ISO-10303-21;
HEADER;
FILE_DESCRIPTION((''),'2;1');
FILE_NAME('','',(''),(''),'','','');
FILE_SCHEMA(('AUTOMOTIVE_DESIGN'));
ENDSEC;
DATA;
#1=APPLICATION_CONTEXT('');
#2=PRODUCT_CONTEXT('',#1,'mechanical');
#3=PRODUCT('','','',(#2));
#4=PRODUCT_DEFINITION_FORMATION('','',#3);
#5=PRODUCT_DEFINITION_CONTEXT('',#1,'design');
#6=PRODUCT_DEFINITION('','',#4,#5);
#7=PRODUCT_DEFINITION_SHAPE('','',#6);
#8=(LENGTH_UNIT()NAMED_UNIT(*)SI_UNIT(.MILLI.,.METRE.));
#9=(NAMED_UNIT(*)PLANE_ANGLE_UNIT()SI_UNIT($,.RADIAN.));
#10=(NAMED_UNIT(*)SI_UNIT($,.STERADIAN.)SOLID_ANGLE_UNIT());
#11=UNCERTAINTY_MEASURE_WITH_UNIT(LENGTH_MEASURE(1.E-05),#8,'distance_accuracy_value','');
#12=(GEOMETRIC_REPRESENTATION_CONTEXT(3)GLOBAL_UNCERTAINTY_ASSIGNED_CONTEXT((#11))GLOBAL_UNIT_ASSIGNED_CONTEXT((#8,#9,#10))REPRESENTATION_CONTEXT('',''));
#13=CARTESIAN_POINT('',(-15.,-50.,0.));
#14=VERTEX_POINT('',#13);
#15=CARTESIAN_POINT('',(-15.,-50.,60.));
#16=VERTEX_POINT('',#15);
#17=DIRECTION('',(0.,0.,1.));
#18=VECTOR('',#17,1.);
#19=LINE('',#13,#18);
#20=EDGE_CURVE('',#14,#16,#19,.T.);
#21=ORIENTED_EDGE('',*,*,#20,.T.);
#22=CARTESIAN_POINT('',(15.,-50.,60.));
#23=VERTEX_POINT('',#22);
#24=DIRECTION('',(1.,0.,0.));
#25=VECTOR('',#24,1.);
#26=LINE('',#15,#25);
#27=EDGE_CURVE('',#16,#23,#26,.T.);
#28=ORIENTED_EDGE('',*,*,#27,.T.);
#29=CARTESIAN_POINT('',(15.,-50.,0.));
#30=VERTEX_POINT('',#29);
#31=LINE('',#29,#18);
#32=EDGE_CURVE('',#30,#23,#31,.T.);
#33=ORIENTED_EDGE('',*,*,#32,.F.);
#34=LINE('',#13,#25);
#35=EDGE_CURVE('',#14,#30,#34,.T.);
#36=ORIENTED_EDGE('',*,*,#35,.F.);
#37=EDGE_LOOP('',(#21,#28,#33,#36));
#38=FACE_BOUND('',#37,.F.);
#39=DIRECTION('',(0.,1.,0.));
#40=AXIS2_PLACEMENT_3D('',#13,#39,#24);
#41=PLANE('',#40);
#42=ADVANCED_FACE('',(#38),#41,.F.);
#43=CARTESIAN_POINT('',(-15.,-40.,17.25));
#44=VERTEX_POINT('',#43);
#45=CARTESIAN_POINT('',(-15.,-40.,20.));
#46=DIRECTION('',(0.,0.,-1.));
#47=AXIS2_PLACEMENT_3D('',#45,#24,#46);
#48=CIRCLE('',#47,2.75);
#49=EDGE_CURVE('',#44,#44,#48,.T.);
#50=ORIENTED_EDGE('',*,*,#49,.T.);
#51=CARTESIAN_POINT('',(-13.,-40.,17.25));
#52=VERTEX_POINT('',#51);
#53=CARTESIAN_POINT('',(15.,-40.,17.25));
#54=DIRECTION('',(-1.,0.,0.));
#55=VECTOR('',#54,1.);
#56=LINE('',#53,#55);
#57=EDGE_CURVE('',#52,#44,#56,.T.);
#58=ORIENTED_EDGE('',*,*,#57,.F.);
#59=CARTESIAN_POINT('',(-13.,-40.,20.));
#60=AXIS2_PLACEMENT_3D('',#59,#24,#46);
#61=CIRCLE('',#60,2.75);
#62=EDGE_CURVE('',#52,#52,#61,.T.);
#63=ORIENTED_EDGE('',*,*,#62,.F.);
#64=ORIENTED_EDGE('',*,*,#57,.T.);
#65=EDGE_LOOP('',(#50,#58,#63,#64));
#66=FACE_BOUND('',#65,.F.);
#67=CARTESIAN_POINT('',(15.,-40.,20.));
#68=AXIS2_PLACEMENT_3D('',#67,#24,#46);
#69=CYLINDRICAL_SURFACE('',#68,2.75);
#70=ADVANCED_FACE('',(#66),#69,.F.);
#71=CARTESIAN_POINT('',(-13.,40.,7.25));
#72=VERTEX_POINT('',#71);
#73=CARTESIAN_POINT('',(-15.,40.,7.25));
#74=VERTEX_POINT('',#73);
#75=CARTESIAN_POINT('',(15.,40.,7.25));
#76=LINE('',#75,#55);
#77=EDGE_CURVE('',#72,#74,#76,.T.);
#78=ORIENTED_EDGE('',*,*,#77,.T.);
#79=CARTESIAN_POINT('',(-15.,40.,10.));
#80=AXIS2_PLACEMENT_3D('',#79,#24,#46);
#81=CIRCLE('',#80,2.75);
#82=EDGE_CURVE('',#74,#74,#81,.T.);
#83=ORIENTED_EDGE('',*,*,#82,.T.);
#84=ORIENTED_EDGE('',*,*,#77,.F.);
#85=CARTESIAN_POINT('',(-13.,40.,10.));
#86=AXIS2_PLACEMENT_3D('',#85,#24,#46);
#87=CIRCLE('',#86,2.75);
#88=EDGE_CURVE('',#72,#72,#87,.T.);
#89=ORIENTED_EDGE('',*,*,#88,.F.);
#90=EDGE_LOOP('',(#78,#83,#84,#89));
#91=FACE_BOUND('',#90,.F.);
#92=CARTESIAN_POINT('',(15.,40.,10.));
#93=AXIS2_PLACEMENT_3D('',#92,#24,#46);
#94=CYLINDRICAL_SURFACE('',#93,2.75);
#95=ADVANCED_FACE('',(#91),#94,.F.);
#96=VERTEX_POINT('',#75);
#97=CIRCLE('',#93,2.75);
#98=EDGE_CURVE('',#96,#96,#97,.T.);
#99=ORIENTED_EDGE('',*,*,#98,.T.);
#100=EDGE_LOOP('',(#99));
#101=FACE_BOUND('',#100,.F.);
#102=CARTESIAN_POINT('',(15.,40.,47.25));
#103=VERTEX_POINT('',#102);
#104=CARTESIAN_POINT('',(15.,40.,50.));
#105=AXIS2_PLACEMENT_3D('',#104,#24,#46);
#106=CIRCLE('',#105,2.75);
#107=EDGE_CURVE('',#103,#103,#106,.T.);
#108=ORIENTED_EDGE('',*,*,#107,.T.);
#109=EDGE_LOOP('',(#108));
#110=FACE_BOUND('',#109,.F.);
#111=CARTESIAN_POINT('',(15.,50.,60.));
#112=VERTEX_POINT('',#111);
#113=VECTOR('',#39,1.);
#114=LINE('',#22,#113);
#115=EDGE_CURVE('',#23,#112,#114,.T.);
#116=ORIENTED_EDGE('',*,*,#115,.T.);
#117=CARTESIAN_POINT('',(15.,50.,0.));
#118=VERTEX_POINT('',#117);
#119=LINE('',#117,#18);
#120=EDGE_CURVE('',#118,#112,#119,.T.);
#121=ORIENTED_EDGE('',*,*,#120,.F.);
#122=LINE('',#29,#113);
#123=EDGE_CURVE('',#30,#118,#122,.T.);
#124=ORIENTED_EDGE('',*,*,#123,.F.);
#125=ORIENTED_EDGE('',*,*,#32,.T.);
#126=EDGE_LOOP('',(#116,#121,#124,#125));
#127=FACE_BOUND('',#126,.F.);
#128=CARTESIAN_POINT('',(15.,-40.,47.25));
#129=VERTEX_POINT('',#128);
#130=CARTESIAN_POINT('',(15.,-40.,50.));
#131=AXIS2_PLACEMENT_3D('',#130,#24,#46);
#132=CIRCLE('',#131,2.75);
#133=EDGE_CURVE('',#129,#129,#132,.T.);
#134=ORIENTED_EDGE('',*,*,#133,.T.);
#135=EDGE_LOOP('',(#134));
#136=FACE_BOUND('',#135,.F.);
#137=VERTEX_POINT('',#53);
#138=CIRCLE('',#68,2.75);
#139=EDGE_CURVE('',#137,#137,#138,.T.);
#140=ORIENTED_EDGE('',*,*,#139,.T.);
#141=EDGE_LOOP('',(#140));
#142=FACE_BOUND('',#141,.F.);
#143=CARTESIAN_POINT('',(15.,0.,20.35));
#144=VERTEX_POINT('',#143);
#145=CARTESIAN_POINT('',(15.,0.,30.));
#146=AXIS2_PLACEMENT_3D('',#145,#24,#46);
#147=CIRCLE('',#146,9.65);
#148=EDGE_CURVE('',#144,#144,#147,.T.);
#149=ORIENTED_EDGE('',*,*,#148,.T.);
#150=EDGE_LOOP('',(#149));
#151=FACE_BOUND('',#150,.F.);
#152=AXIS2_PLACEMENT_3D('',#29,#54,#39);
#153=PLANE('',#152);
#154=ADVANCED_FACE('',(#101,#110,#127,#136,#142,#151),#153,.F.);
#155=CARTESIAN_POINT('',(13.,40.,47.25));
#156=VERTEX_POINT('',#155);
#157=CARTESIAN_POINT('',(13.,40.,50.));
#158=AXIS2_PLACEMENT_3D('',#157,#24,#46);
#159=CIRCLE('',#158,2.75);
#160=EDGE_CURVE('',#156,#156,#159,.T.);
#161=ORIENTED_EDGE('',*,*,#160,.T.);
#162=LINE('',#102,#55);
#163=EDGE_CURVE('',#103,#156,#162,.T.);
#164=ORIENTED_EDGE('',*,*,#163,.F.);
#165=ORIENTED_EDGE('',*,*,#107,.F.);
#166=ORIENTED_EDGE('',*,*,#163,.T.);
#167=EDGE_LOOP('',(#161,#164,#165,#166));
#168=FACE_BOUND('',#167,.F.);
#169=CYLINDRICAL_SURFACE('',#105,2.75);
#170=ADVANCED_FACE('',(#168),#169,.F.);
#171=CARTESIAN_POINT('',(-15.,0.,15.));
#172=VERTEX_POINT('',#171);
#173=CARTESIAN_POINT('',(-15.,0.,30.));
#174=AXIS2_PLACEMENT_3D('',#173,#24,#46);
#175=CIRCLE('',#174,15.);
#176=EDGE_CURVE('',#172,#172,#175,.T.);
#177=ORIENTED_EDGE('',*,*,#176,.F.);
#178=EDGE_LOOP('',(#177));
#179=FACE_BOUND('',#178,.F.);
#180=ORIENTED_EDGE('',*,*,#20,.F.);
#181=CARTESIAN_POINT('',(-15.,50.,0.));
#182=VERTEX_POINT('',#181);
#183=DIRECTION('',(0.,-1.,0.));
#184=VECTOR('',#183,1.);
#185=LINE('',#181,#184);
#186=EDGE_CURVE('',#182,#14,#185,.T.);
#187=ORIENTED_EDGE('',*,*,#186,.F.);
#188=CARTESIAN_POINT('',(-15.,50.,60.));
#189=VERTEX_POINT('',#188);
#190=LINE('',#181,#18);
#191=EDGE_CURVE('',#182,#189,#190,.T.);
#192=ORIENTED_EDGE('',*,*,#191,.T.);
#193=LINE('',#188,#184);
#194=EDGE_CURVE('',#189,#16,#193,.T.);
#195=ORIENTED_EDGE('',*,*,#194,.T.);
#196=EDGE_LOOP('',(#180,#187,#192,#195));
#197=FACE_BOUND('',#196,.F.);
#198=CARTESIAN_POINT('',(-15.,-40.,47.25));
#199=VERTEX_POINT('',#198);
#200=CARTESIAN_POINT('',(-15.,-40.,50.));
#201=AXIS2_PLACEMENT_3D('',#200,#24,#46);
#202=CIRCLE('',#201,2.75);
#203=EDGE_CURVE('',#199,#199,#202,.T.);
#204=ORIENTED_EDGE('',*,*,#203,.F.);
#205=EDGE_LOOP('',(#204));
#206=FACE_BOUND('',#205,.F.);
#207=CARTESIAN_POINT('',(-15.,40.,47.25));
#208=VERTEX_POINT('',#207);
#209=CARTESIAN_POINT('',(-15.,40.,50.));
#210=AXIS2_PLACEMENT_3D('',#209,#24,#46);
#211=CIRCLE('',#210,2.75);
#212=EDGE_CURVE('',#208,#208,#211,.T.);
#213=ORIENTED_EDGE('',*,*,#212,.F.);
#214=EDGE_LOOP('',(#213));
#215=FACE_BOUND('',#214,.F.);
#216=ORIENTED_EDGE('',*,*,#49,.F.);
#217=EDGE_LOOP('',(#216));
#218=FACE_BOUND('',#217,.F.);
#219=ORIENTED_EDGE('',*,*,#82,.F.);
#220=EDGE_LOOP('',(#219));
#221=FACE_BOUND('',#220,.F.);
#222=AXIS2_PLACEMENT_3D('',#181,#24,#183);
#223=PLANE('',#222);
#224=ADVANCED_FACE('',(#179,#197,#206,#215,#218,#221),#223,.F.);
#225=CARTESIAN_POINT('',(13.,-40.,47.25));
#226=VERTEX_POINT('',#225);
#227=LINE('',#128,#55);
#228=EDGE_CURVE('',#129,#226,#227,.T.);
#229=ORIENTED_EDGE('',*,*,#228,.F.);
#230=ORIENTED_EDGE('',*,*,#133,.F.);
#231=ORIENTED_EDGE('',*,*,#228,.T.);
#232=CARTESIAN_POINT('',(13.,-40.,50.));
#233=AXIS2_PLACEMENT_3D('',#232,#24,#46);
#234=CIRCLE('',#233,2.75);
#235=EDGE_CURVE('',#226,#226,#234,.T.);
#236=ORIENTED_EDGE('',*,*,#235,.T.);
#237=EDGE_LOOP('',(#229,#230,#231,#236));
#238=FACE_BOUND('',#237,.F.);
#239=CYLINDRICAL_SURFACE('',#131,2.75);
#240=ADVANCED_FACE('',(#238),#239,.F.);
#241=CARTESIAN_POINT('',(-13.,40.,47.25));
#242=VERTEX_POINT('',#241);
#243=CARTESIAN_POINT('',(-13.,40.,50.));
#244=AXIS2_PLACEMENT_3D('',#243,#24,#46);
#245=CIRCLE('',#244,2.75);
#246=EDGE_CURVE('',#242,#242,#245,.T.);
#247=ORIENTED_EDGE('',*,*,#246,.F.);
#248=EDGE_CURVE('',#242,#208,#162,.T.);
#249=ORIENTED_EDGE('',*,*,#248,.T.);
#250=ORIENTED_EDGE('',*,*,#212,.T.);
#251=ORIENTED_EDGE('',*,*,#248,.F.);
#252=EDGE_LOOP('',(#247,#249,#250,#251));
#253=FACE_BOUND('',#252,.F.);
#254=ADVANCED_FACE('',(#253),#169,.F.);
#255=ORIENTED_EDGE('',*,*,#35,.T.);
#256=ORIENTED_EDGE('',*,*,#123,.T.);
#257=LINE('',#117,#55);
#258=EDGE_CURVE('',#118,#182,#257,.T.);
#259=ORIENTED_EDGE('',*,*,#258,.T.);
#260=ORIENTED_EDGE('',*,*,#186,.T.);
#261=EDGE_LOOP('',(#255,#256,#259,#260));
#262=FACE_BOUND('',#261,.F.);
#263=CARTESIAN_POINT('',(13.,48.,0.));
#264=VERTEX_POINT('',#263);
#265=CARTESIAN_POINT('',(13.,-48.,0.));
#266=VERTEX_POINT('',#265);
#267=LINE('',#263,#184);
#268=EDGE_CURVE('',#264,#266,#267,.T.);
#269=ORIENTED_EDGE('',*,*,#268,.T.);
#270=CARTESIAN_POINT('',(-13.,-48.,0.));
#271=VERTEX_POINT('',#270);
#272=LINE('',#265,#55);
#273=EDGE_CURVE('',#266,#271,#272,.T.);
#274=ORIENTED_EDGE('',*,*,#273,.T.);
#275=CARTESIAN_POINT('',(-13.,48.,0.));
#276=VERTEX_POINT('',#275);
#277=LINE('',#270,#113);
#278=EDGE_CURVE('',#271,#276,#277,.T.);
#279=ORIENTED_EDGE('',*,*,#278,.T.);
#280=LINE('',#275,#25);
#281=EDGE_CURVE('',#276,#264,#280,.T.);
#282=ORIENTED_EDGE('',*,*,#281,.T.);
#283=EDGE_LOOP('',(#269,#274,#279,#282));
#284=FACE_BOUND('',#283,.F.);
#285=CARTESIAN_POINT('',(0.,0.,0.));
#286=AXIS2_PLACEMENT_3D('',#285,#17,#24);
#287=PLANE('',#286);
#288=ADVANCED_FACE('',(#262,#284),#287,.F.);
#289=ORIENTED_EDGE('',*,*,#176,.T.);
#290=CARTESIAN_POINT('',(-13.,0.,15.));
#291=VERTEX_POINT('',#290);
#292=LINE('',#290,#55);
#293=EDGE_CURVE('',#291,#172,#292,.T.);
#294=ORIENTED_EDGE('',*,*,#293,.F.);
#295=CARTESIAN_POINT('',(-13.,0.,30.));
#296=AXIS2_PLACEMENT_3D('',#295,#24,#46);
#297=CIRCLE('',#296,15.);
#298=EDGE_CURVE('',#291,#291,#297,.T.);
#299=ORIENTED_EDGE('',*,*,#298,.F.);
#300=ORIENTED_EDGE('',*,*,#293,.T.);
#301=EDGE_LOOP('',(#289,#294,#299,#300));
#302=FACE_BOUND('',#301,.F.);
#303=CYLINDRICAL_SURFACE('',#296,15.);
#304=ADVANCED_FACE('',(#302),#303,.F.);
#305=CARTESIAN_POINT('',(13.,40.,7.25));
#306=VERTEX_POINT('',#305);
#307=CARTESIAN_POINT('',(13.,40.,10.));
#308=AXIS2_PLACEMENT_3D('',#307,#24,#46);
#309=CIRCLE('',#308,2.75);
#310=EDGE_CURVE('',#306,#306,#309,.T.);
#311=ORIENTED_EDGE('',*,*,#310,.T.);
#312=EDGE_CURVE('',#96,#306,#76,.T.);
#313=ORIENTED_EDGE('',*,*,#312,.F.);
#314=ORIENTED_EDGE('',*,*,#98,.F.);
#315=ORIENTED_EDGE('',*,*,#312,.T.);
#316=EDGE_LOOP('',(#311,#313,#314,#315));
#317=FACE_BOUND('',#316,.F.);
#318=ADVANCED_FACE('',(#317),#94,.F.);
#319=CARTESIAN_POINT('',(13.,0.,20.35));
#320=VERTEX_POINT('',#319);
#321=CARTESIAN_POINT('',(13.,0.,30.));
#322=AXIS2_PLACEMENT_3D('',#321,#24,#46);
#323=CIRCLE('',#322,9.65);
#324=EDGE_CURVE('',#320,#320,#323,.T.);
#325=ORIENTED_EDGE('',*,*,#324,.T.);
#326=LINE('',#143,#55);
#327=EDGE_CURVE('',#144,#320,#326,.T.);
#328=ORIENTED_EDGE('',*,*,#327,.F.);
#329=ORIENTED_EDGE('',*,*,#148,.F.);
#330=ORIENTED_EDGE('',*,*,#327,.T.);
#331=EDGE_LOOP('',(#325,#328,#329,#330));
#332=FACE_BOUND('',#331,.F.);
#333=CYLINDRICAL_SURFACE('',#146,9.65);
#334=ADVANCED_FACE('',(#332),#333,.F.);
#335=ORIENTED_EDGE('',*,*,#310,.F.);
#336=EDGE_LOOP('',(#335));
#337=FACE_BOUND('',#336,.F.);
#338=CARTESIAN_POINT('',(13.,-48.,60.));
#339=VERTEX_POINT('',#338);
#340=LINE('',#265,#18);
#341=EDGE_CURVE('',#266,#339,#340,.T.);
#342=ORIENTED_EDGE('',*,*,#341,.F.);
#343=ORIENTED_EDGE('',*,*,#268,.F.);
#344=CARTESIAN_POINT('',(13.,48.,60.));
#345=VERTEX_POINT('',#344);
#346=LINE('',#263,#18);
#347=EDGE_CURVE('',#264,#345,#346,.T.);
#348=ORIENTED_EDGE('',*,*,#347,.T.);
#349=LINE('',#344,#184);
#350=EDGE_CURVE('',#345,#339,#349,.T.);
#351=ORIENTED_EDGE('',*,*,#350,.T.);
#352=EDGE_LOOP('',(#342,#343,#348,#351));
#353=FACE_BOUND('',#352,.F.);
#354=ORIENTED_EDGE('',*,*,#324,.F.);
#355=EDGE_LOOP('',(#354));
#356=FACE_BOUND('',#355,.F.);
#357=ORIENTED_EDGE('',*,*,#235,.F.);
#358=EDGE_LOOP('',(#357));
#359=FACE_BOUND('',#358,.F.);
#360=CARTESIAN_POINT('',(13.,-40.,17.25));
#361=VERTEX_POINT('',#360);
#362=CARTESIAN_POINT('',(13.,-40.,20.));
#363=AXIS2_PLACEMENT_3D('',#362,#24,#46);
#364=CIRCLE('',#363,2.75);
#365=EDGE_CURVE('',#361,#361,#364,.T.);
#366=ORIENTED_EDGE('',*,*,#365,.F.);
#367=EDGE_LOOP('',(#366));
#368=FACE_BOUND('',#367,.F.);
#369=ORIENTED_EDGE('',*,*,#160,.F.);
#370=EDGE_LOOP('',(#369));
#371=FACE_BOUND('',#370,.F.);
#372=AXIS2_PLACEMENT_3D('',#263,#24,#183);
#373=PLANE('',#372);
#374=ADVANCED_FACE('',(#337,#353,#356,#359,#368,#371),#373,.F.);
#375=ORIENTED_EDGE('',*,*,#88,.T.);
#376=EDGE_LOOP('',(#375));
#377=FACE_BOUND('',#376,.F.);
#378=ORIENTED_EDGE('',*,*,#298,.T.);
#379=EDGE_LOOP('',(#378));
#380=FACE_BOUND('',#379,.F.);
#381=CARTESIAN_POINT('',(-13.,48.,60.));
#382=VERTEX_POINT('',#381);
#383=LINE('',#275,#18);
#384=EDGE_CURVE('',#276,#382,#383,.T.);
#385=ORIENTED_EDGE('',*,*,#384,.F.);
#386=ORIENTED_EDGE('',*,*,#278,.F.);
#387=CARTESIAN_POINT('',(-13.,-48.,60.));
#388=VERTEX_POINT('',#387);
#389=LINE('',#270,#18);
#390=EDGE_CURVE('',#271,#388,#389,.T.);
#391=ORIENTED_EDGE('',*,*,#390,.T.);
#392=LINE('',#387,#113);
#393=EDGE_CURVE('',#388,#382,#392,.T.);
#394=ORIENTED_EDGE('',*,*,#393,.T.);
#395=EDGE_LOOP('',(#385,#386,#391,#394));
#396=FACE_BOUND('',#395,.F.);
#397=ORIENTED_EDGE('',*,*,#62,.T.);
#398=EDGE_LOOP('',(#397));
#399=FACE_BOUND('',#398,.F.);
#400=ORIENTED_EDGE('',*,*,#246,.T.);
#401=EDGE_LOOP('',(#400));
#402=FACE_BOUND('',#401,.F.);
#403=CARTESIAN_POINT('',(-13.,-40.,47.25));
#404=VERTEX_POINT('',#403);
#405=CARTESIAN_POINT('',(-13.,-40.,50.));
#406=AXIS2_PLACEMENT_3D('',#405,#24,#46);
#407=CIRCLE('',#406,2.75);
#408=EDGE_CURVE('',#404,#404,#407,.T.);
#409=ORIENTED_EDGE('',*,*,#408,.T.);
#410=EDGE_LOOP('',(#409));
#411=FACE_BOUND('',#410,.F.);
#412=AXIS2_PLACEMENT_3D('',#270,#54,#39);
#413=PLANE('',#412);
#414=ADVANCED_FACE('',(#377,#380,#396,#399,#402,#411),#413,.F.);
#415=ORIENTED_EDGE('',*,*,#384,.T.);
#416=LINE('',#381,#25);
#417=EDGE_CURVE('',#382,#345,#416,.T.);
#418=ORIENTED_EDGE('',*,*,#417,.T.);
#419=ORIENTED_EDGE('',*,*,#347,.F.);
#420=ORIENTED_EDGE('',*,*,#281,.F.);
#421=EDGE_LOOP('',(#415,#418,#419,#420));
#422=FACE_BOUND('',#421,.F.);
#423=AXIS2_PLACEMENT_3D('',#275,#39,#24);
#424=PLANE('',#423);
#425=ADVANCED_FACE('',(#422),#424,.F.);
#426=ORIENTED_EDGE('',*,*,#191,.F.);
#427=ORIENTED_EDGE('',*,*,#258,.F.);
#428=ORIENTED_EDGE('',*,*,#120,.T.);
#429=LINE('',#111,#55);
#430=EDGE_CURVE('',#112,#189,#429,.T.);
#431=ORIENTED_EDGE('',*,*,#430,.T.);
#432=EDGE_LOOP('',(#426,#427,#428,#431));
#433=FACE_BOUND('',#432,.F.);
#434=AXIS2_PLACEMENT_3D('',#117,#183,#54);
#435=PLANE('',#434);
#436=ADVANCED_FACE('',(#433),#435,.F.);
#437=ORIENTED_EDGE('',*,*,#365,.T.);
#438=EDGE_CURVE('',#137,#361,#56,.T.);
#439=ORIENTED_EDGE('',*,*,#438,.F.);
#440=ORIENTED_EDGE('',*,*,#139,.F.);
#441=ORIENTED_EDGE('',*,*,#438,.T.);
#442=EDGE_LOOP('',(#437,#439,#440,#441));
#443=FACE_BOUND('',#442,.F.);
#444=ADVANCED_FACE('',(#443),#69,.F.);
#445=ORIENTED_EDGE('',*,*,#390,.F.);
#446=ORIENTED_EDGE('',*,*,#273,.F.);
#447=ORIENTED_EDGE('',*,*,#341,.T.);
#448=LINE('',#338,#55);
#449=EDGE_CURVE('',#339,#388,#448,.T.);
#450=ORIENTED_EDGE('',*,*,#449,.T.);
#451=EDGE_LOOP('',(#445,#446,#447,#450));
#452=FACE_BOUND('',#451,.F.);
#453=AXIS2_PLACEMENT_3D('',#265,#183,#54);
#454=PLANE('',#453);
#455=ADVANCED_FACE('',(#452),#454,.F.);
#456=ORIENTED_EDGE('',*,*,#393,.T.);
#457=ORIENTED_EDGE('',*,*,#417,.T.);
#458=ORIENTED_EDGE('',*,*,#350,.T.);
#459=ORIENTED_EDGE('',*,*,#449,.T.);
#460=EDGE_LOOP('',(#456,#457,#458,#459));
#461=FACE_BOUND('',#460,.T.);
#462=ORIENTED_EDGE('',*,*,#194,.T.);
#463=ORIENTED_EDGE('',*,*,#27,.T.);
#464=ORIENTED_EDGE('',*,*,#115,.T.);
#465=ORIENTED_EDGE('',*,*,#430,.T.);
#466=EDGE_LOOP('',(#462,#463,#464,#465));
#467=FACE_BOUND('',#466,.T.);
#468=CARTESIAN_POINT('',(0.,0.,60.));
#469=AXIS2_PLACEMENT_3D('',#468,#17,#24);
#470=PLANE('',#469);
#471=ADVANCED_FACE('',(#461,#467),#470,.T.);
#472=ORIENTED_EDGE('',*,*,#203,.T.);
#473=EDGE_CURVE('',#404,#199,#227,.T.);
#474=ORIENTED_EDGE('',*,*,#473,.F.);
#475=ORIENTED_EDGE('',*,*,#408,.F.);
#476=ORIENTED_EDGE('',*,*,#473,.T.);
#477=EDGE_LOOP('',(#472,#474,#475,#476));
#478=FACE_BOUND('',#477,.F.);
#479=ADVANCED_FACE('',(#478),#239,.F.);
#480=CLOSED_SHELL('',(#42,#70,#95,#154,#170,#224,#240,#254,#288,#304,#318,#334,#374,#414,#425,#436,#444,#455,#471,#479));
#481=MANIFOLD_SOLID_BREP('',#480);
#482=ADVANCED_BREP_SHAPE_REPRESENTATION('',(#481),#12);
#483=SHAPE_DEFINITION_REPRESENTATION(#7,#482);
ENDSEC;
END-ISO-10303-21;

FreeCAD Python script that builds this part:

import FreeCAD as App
import Part
import Sketcher
from FreeCAD import Vector


def add_polygon(sketch, points):
    """Adds a closed chain of lines whose ends are joined by coincident constraints."""
    first, n = sketch.GeometryCount, len(points)
    for a, b in zip(points, points[1:] + points[:1]):
        sketch.addGeometry(Part.LineSegment(App.Vector(*a, 0), App.Vector(*b, 0)), False)
    for i in range(n):
        sketch.addConstraint(Sketcher.Constraint("Coincident", first + i, 2, first + (i + 1) % n, 1))

doc = App.newDocument("Part")
body = doc.addObject("PartDesign::Body", "Body")

sketch1 = body.newObject("Sketcher::SketchObject", "Sketch")
sketch1.AttachmentSupport = (doc.getObject("XY_Plane"), [""])
sketch1.MapMode = "FlatFace"
add_polygon(sketch1, [(-15, 50), (-15, -50), (15, -50), (15, 50)])
add_polygon(sketch1, [(-13, -48), (-13, 48), (13, 48), (13, -48)])
sketch1.addConstraint(Sketcher.Constraint("Vertical", 0))
sketch1.addConstraint(Sketcher.Constraint("Horizontal", 1))
sketch1.addConstraint(Sketcher.Constraint("Vertical", 2))
sketch1.addConstraint(Sketcher.Constraint("Horizontal", 3))
sketch1.addConstraint(Sketcher.Constraint("Vertical", 4))
sketch1.addConstraint(Sketcher.Constraint("Horizontal", 5))
sketch1.addConstraint(Sketcher.Constraint("Vertical", 6))
sketch1.addConstraint(Sketcher.Constraint("Horizontal", 7))
sketch1.addConstraint(Sketcher.Constraint("Symmetric", 0, 2, 2, 2, -1, 1))
sketch1.addConstraint(Sketcher.Constraint("Symmetric", 4, 2, 6, 2, -1, 1))
sketch1.addConstraint(Sketcher.Constraint("DistanceX", 1, 1, 1, 2, 30.0))
sketch1.addConstraint(Sketcher.Constraint("DistanceY", 0, 2, 0, 1, 100.0))
sketch1.addConstraint(Sketcher.Constraint("DistanceX", 3, 2, 4, 2, 2.0))
sketch1.addConstraint(Sketcher.Constraint("DistanceY", 4, 2, 3, 2, 2.0))
pad1 = body.newObject("PartDesign::Pad", "Pad")
pad1.Profile = sketch1
pad1.Length = 60

sketch2 = body.newObject("Sketcher::SketchObject", "Sketch001")
sketch2.AttachmentSupport = (doc.getObject("YZ_Plane"), [""])
sketch2.MapMode = "FlatFace"
sketch2.AttachmentOffset = App.Placement(Vector(0, 0, 15), App.Rotation())
sketch2.addGeometry(Part.Circle(Vector(0, 30, 0), Vector(0, 0, 1), 9.65), False)
sketch2.addGeometry(Part.Circle(Vector(40, 50, 0), Vector(0, 0, 1), 2.75), False)
sketch2.addGeometry(Part.Circle(Vector(40, 10, 0), Vector(0, 0, 1), 2.75), False)
sketch2.addGeometry(Part.Circle(Vector(-40, 20, 0), Vector(0, 0, 1), 2.75), False)
sketch2.addGeometry(Part.Circle(Vector(-40, 50, 0), Vector(0, 0, 1), 2.75), False)
sketch2.addConstraint(Sketcher.Constraint("Equal", 1, 2))
sketch2.addConstraint(Sketcher.Constraint("Equal", 2, 3))
sketch2.addConstraint(Sketcher.Constraint("Equal", 3, 4))
sketch2.addConstraint(Sketcher.Constraint("Symmetric", 1, 3, 4, 3, -2))
sketch2.addConstraint(Sketcher.Constraint("PointOnObject", 0, 3, -2))
sketch2.addConstraint(Sketcher.Constraint("Vertical", 1, 3, 2, 3))
sketch2.addConstraint(Sketcher.Constraint("Vertical", 3, 3, 4, 3))
sketch2.addConstraint(Sketcher.Constraint("Diameter", 0, 19.3))
sketch2.addConstraint(Sketcher.Constraint("Diameter", 1, 5.5))
sketch2.addConstraint(Sketcher.Constraint("DistanceY", -1, 1, 0, 3, 30.0))
sketch2.addConstraint(Sketcher.Constraint("DistanceX", -1, 1, 1, 3, 40.0))
sketch2.addConstraint(Sketcher.Constraint("DistanceY", -1, 1, 1, 3, 50.0))
sketch2.addConstraint(Sketcher.Constraint("DistanceY", -1, 1, 2, 3, 10.0))
sketch2.addConstraint(Sketcher.Constraint("DistanceY", -1, 1, 3, 3, 20.0))
pocket1 = body.newObject("PartDesign::Pocket", "Pocket")
pocket1.Profile = sketch2
pocket1.Length = 38.5

sketch3 = body.newObject("Sketcher::SketchObject", "Sketch002")
sketch3.AttachmentSupport = (doc.getObject("YZ_Plane"), [""])
sketch3.MapMode = "FlatFace"
sketch3.AttachmentOffset = App.Placement(Vector(0, 0, -13), App.Rotation())
sketch3.addGeometry(Part.Circle(Vector(0, 30, 0), Vector(0, 0, 1), 15), False)
sketch3.addConstraint(Sketcher.Constraint("PointOnObject", 0, 3, -2))
sketch3.addConstraint(Sketcher.Constraint("Diameter", 0, 30.0))
sketch3.addConstraint(Sketcher.Constraint("DistanceY", -1, 1, 0, 3, 30.0))
pocket2 = body.newObject("PartDesign::Pocket", "Pocket001")
pocket2.Profile = sketch3
pocket2.Length = 2

doc.recompute()
